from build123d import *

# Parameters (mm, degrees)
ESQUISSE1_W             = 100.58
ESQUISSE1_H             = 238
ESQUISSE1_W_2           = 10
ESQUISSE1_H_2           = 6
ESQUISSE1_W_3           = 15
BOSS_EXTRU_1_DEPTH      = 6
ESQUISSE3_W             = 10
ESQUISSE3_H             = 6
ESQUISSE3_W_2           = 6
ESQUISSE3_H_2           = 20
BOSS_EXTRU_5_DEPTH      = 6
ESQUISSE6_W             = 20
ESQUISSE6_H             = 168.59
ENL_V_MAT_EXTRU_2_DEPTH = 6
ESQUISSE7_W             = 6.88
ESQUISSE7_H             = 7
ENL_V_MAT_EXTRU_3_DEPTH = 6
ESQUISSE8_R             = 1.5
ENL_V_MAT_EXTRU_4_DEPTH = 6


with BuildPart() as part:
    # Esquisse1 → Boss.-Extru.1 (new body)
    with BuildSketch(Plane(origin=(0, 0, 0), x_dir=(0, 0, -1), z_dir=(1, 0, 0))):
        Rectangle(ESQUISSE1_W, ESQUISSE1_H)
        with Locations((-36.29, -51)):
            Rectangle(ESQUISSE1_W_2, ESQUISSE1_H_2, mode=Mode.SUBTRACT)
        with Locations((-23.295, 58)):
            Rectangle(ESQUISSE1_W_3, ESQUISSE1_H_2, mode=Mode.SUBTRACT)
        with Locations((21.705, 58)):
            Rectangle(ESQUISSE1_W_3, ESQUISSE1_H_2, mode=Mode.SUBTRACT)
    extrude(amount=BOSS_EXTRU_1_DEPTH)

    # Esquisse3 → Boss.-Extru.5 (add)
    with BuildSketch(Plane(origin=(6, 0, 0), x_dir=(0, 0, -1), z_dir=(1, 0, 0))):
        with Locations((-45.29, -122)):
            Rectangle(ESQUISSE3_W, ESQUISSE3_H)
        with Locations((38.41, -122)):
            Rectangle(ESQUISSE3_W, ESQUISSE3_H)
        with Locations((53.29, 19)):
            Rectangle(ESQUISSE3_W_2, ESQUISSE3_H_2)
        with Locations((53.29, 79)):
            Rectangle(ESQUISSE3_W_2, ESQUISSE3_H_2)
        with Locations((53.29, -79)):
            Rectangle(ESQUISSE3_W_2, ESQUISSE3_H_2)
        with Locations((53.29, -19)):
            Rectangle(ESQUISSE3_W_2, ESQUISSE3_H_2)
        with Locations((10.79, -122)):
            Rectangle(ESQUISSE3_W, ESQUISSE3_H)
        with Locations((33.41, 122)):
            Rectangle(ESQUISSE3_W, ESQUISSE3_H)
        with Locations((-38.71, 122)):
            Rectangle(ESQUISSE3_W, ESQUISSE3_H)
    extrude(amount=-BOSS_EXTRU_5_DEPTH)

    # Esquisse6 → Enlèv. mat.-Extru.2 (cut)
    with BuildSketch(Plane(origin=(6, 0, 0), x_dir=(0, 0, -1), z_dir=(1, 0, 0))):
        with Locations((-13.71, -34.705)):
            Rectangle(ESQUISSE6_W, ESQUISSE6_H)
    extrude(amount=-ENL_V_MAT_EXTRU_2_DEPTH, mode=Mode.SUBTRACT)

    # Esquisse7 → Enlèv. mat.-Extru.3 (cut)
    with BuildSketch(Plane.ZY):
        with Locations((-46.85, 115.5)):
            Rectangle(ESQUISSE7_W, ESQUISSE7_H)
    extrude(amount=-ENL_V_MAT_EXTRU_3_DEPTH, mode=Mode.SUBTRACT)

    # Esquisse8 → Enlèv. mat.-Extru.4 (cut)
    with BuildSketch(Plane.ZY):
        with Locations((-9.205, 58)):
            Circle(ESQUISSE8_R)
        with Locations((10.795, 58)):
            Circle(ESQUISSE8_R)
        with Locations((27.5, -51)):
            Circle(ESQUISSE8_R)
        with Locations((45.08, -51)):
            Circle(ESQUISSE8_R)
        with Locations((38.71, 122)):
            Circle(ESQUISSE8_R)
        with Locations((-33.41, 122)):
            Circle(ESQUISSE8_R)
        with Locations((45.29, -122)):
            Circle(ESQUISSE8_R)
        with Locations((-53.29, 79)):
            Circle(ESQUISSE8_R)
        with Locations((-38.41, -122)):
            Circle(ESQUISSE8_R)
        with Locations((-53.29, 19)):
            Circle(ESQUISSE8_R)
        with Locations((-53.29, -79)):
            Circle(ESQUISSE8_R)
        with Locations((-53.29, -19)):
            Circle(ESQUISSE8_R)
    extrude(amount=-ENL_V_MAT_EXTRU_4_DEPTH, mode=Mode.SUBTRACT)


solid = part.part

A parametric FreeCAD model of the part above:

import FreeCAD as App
import Part
import Sketcher

V = App.Vector


def add_polygon(sketch, points):
    """Adds a closed chain of lines whose ends are joined by coincident constraints."""
    first, n = sketch.GeometryCount, len(points)
    for a, b in zip(points, points[1:] + points[:1]):
        sketch.addGeometry(Part.LineSegment(App.Vector(*a, 0), App.Vector(*b, 0)), False)
    for i in range(n):
        sketch.addConstraint(Sketcher.Constraint("Coincident", first + i, 2, first + (i + 1) % n, 1))

doc = App.newDocument("Part")
params = doc.addObject("Spreadsheet::Sheet", "Params")
for row, (alias, value) in enumerate([
    ("sketch1_width", "238 mm"),
    ("sketch1_width2", "6 mm"),
    ("sketch1_height", "10 mm"),
    ("sketch1_height2", "15 mm"),
    ("sketch1_height3", "100.58 mm"),
    ("pad1_length", "6 mm"),
    ("sketch2_width", "6 mm"),
    ("sketch2_width2", "20 mm"),
    ("sketch2_height", "10 mm"),
    ("pad2_length", "6 mm"),
    ("sketch3_height", "20 mm"),
    ("sketch3_width", "168.59 mm"),
    ("pocket1_length", "6 mm"),
    ("sketch4_width", "7 mm"),
    ("sketch4_height", "6.88 mm"),
    ("pocket2_length", "6 mm"),
    ("sketch5_diameter", "3 mm"),
    ("pocket3_length", "6 mm"),
], start=1):
    params.set(f"A{row}", alias)
    params.set(f"B{row}", "=" + value)
    params.setAlias(f"B{row}", alias)

body = doc.addObject("PartDesign::Body", "Body")

sketch1 = body.newObject("Sketcher::SketchObject", "Sketch")
sketch1.AttachmentSupport = (doc.getObject("YZ_Plane"), [""])
sketch1.MapMode = "FlatFace"
add_polygon(sketch1, [(119, 50.29), (-119, 50.29), (-119, -50.29), (119, -50.29)])
add_polygon(sketch1, [(-54, 31.29), (-54, 41.29), (-48, 41.29), (-48, 31.29)])
add_polygon(sketch1, [(55, 15.795), (55, 30.795), (61, 30.795), (61, 15.795)])
add_polygon(sketch1, [(55, -29.205), (55, -14.205), (61, -14.205), (61, -29.205)])
sketch1.addConstraint([
    Sketcher.Constraint("Horizontal", 0),
    Sketcher.Constraint("Vertical", 1),
    Sketcher.Constraint("Horizontal", 2),
    Sketcher.Constraint("Vertical", 3),
    Sketcher.Constraint("Vertical", 4),
    Sketcher.Constraint("Horizontal", 5),
    Sketcher.Constraint("Vertical", 6),
    Sketcher.Constraint("Horizontal", 7),
    Sketcher.Constraint("Vertical", 8),
    Sketcher.Constraint("Horizontal", 9),
    Sketcher.Constraint("Vertical", 10),
    Sketcher.Constraint("Horizontal", 11),
    Sketcher.Constraint("Vertical", 12),
    Sketcher.Constraint("Horizontal", 13),
    Sketcher.Constraint("Vertical", 14),
    Sketcher.Constraint("Horizontal", 15),
    Sketcher.Constraint("Symmetric", 0, 2, 2, 2, -1, 1),
    Sketcher.Constraint("Vertical", 11, 2, 12, 2),
    Sketcher.Constraint("Vertical", 10, 2, 13, 2),
    Sketcher.Constraint("Equal", 7, 9),
    Sketcher.Constraint("Equal", 10, 12),
    Sketcher.Constraint("DistanceX", 0, 2, 0, 1, 238.0),
    Sketcher.Constraint("DistanceX", 5, 1, 5, 2, 6.0),
    Sketcher.Constraint("DistanceY", 4, 1, 4, 2, 10.0),
    Sketcher.Constraint("DistanceY", 8, 1, 8, 2, 15.0),
    Sketcher.Constraint("DistanceX", 4, 2, -1, 1, 54.0),
    Sketcher.Constraint("DistanceX", -1, 1, 8, 2, 55.0),
    Sketcher.Constraint("DistanceY", 4, 2, 0, 2, 9.0),
    Sketcher.Constraint("DistanceY", 12, 2, 11, 2, 30.0),
    Sketcher.Constraint("DistanceY", 1, 2, 1, 1, 100.58),
    Sketcher.Constraint("DistanceY", -1, 1, 8, 2, 30.795),
])
sketch1.setExpression("Constraints[37]", "Params.sketch1_width")
sketch1.setExpression("Constraints[38]", "Params.sketch1_width2")
sketch1.setExpression("Constraints[39]", "Params.sketch1_height")
sketch1.setExpression("Constraints[40]", "Params.sketch1_height2")
sketch1.setExpression("Constraints[45]", "Params.sketch1_height3")
pad1 = body.newObject("PartDesign::Pad", "Pad")
pad1.Profile = sketch1
pad1.setExpression("Length", "Params.pad1_length")

sketch2 = body.newObject("Sketcher::SketchObject", "Sketch001")
sketch2.AttachmentSupport = (doc.getObject("YZ_Plane"), [""])
sketch2.MapMode = "FlatFace"
sketch2.AttachmentOffset = App.Placement(V(0, 0, 6), App.Rotation())
add_polygon(sketch2, [(-119, 50.29), (-125, 50.29), (-125, 40.29), (-119, 40.29)])
add_polygon(sketch2, [(-119, -33.41), (-125, -33.41), (-125, -43.41), (-119, -43.41)])
add_polygon(sketch2, [(29, -50.29), (9, -50.29), (9, -56.29), (29, -56.29)])
add_polygon(sketch2, [(89, -50.29), (69, -50.29), (69, -56.29), (89, -56.29)])
add_polygon(sketch2, [(-69, -50.29), (-89, -50.29), (-89, -56.29), (-69, -56.29)])
add_polygon(sketch2, [(-9, -50.29), (-29, -50.29), (-29, -56.29), (-9, -56.29)])
add_polygon(sketch2, [(-119, -5.79), (-125, -5.79), (-125, -15.79), (-119, -15.79)])
add_polygon(sketch2, [(125, -28.41), (119, -28.41), (119, -38.41), (125, -38.41)])
add_polygon(sketch2, [(125, 43.71), (119, 43.71), (119, 33.71), (125, 33.71)])
sketch2.addConstraint([
    Sketcher.Constraint("Horizontal", 0),
    Sketcher.Constraint("Vertical", 1),
    Sketcher.Constraint("Horizontal", 2),
    Sketcher.Constraint("Vertical", 3),
    Sketcher.Constraint("Horizontal", 4),
    Sketcher.Constraint("Vertical", 5),
    Sketcher.Constraint("Horizontal", 6),
    Sketcher.Constraint("Vertical", 7),
    Sketcher.Constraint("Horizontal", 8),
    Sketcher.Constraint("Vertical", 9),
    Sketcher.Constraint("Horizontal", 10),
    Sketcher.Constraint("Vertical", 11),
    Sketcher.Constraint("Horizontal", 12),
    Sketcher.Constraint("Vertical", 13),
    Sketcher.Constraint("Horizontal", 14),
    Sketcher.Constraint("Vertical", 15),
    Sketcher.Constraint("Horizontal", 16),
    Sketcher.Constraint("Vertical", 17),
    Sketcher.Constraint("Horizontal", 18),
    Sketcher.Constraint("Vertical", 19),
    Sketcher.Constraint("Horizontal", 20),
    Sketcher.Constraint("Vertical", 21),
    Sketcher.Constraint("Horizontal", 22),
    Sketcher.Constraint("Vertical", 23),
    Sketcher.Constraint("Horizontal", 24),
    Sketcher.Constraint("Vertical", 25),
    Sketcher.Constraint("Horizontal", 26),
    Sketcher.Constraint("Vertical", 27),
    Sketcher.Constraint("Horizontal", 28),
    Sketcher.Constraint("Vertical", 29),
    Sketcher.Constraint("Horizontal", 30),
    Sketcher.Constraint("Vertical", 31),
    Sketcher.Constraint("Horizontal", 32),
    Sketcher.Constraint("Vertical", 33),
    Sketcher.Constraint("Horizontal", 34),
    Sketcher.Constraint("Vertical", 35),
    Sketcher.Constraint("Symmetric", 15, 2, 16, 2, -2),
    Sketcher.Constraint("Symmetric", 13, 2, 18, 2, -2),
    Sketcher.Constraint("Symmetric", 11, 2, 20, 2, -2),
    Sketcher.Constraint("Symmetric", 9, 2, 22, 2, -2),
    Sketcher.Constraint("Horizontal", 11, 2, 12, 2),
    Sketcher.Constraint("Horizontal", 10, 2, 13, 2),
    Sketcher.Constraint("Vertical", 1, 2, 4, 2),
    Sketcher.Constraint("Vertical", 3, 2, 6, 2),
    Sketcher.Constraint("Vertical", 5, 2, 24, 2),
    Sketcher.Constraint("Vertical", 7, 2, 26, 2),
    Sketcher.Constraint("Vertical", 29, 2, 32, 2),
    Sketcher.Constraint("Vertical", 31, 2, 34, 2),
    Sketcher.Constraint("Equal", 10, 12),
    Sketcher.Constraint("Equal", 26, 28),
    Sketcher.Constraint("Equal", 3, 5),
    Sketcher.Constraint("Equal", 34, 9),
    Sketcher.Constraint("Equal", 7, 25),
    Sketcher.Constraint("Equal", 27, 29),
    Sketcher.Constraint("Equal", 31, 33),
    Sketcher.Constraint("DistanceX", 0, 2, 0, 1, 6.0),
    Sketcher.Constraint("DistanceX", 8, 2, 8, 1, 20.0),
    Sketcher.Constraint("DistanceY", 1, 2, 1, 1, 10.0),
    Sketcher.Constraint("DistanceX", 0, 2, -1, 1, 125.0),
    Sketcher.Constraint("DistanceX", -1, 1, 8, 2, 9.0),
    Sketcher.Constraint("DistanceX", -1, 1, 12, 2, 69.0),
    Sketcher.Constraint("DistanceX", -1, 1, 28, 2, 119.0),
    Sketcher.Constraint("DistanceY", 15, 2, 32, 2, 94.0),
    Sketcher.Constraint("DistanceY", 4, 2, 1, 2, 73.7),
    Sketcher.Constraint("DistanceY", -1, 1, 0, 2, 50.29),
    Sketcher.Constraint("DistanceY", 8, 2, -1, 1, 50.29),
    Sketcher.Constraint("DistanceY", 24, 2, -1, 1, 5.79),
    Sketcher.Constraint("DistanceY", 28, 2, -1, 1, 28.41),
])
sketch2.setExpression("Constraints[91]", "Params.sketch2_width")
sketch2.setExpression("Constraints[92]", "Params.sketch2_width2")
sketch2.setExpression("Constraints[93]", "Params.sketch2_height")
pad2 = body.newObject("PartDesign::Pad", "Pad001")
pad2.Profile = sketch2
pad2.setExpression("Length", "Params.pad2_length")
pad2.Reversed = True

sketch3 = body.newObject("Sketcher::SketchObject", "Sketch002")
sketch3.AttachmentSupport = (doc.getObject("YZ_Plane"), [""])
sketch3.MapMode = "FlatFace"
sketch3.AttachmentOffset = App.Placement(V(0, 0, 6), App.Rotation())
add_polygon(sketch3, [(49.59, 23.71), (-119, 23.71), (-119, 3.71), (49.59, 3.71)])
sketch3.addConstraint([
    Sketcher.Constraint("Horizontal", 0),
    Sketcher.Constraint("Vertical", 1),
    Sketcher.Constraint("Horizontal", 2),
    Sketcher.Constraint("Vertical", 3),
    Sketcher.Constraint("DistanceY", 1, 2, 1, 1, 20.0),
    Sketcher.Constraint("DistanceX", 0, 2, -1, 1, 119.0),
    Sketcher.Constraint("DistanceX", 0, 2, 0, 1, 168.59),
    Sketcher.Constraint("DistanceY", -1, 1, 0, 2, 23.71),
])
sketch3.setExpression("Constraints[8]", "Params.sketch3_height")
sketch3.setExpression("Constraints[10]", "Params.sketch3_width")
pocket1 = body.newObject("PartDesign::Pocket", "Pocket")
pocket1.Profile = sketch3
pocket1.setExpression("Length", "Params.pocket1_length")

sketch4 = body.newObject("Sketcher::SketchObject", "Sketch003")
sketch4.AttachmentSupport = (doc.getObject("YZ_Plane"), [""])
sketch4.MapMode = "FlatFace"
add_polygon(sketch4, [(119, -50.29), (112, -50.29), (112, -43.41), (119, -43.41)])
sketch4.addConstraint([
    Sketcher.Constraint("Horizontal", 0),
    Sketcher.Constraint("Vertical", 1),
    Sketcher.Constraint("Horizontal", 2),
    Sketcher.Constraint("Vertical", 3),
    Sketcher.Constraint("DistanceX", 0, 2, 0, 1, 7.0),
    Sketcher.Constraint("DistanceX", -1, 1, 0, 2, 112.0),
    Sketcher.Constraint("DistanceY", 1, 1, 1, 2, 6.88),
    Sketcher.Constraint("DistanceY", 0, 2, -1, 1, 50.29),
])
sketch4.setExpression("Constraints[8]", "Params.sketch4_width")
sketch4.setExpression("Constraints[10]", "Params.sketch4_height")
pocket2 = body.newObject("PartDesign::Pocket", "Pocket001")
pocket2.Profile = sketch4
pocket2.setExpression("Length", "Params.pocket2_length")
pocket2.Reversed = True

sketch5 = body.newObject("Sketcher::SketchObject", "Sketch004")
sketch5.AttachmentSupport = (doc.getObject("YZ_Plane"), [""])
sketch5.MapMode = "FlatFace"
sketch5.addGeometry([
    Part.Circle(V(58, -9.205, 0), V(0, 0, 1), 1.5),
    Part.Circle(V(58, 10.795, 0), V(0, 0, 1), 1.5),
    Part.Circle(V(-51, 27.5, 0), V(0, 0, 1), 1.5),
    Part.Circle(V(-51, 45.08, 0), V(0, 0, 1), 1.5),
    Part.Circle(V(122, 38.71, 0), V(0, 0, 1), 1.5),
    Part.Circle(V(122, -33.41, 0), V(0, 0, 1), 1.5),
    Part.Circle(V(-122, 45.29, 0), V(0, 0, 1), 1.5),
    Part.Circle(V(79, -53.29, 0), V(0, 0, 1), 1.5),
    Part.Circle(V(-122, -38.41, 0), V(0, 0, 1), 1.5),
    Part.Circle(V(19, -53.29, 0), V(0, 0, 1), 1.5),
    Part.Circle(V(-79, -53.29, 0), V(0, 0, 1), 1.5),
    Part.Circle(V(-19, -53.29, 0), V(0, 0, 1), 1.5),
], False)
sketch5.addConstraint([
    Sketcher.Constraint("Equal", 0, 1),
    Sketcher.Constraint("Equal", 1, 2),
    Sketcher.Constraint("Equal", 2, 3),
    Sketcher.Constraint("Equal", 3, 4),
    Sketcher.Constraint("Equal", 4, 5),
    Sketcher.Constraint("Equal", 5, 6),
    Sketcher.Constraint("Equal", 6, 7),
    Sketcher.Constraint("Equal", 7, 8),
    Sketcher.Constraint("Equal", 8, 9),
    Sketcher.Constraint("Equal", 9, 10),
    Sketcher.Constraint("Equal", 10, 11),
    Sketcher.Constraint("Symmetric", 7, 3, 10, 3, -2),
    Sketcher.Constraint("Symmetric", 9, 3, 11, 3, -2),
    Sketcher.Constraint("Horizontal", 7, 3, 9, 3),
    Sketcher.Constraint("Vertical", 0, 3, 1, 3),
    Sketcher.Constraint("Vertical", 2, 3, 3, 3),
    Sketcher.Constraint("Vertical", 4, 3, 5, 3),
    Sketcher.Constraint("Vertical", 6, 3, 8, 3),
    Sketcher.Constraint("Diameter", 0, 3.0),
    Sketcher.Constraint("DistanceX", -1, 1, 0, 3, 58.0),
    Sketcher.Constraint("DistanceX", 2, 3, -1, 1, 51.0),
    Sketcher.Constraint("DistanceX", -1, 1, 4, 3, 122.0),
    Sketcher.Constraint("DistanceX", 6, 3, -1, 1, 122.0),
    Sketcher.Constraint("DistanceX", -1, 1, 7, 3, 79.0),
    Sketcher.Constraint("DistanceX", -1, 1, 9, 3, 19.0),
    Sketcher.Constraint("DistanceY", 0, 3, 1, 3, 20.0),
    Sketcher.Constraint("DistanceY", 7, 3, 4, 3, 92.0),
    Sketcher.Constraint("DistanceY", -1, 1, 2, 3, 27.5),
    Sketcher.Constraint("DistanceY", 8, 3, 6, 3, 83.7),
    Sketcher.Constraint("DistanceY", -1, 1, 3, 3, 45.08),
    Sketcher.Constraint("DistanceY", -1, 1, 4, 3, 38.71),
    Sketcher.Constraint("DistanceY", 5, 3, -1, 1, 33.41),
    Sketcher.Constraint("DistanceY", -1, 1, 6, 3, 45.29),
    Sketcher.Constraint("DistanceY", 0, 3, -1, 1, 9.205),
])
sketch5.setExpression("Constraints[18]", "Params.sketch5_diameter")
pocket3 = body.newObject("PartDesign::Pocket", "Pocket002")
pocket3.Profile = sketch5
pocket3.setExpression("Length", "Params.pocket3_length")
pocket3.Reversed = True

doc.recompute()
